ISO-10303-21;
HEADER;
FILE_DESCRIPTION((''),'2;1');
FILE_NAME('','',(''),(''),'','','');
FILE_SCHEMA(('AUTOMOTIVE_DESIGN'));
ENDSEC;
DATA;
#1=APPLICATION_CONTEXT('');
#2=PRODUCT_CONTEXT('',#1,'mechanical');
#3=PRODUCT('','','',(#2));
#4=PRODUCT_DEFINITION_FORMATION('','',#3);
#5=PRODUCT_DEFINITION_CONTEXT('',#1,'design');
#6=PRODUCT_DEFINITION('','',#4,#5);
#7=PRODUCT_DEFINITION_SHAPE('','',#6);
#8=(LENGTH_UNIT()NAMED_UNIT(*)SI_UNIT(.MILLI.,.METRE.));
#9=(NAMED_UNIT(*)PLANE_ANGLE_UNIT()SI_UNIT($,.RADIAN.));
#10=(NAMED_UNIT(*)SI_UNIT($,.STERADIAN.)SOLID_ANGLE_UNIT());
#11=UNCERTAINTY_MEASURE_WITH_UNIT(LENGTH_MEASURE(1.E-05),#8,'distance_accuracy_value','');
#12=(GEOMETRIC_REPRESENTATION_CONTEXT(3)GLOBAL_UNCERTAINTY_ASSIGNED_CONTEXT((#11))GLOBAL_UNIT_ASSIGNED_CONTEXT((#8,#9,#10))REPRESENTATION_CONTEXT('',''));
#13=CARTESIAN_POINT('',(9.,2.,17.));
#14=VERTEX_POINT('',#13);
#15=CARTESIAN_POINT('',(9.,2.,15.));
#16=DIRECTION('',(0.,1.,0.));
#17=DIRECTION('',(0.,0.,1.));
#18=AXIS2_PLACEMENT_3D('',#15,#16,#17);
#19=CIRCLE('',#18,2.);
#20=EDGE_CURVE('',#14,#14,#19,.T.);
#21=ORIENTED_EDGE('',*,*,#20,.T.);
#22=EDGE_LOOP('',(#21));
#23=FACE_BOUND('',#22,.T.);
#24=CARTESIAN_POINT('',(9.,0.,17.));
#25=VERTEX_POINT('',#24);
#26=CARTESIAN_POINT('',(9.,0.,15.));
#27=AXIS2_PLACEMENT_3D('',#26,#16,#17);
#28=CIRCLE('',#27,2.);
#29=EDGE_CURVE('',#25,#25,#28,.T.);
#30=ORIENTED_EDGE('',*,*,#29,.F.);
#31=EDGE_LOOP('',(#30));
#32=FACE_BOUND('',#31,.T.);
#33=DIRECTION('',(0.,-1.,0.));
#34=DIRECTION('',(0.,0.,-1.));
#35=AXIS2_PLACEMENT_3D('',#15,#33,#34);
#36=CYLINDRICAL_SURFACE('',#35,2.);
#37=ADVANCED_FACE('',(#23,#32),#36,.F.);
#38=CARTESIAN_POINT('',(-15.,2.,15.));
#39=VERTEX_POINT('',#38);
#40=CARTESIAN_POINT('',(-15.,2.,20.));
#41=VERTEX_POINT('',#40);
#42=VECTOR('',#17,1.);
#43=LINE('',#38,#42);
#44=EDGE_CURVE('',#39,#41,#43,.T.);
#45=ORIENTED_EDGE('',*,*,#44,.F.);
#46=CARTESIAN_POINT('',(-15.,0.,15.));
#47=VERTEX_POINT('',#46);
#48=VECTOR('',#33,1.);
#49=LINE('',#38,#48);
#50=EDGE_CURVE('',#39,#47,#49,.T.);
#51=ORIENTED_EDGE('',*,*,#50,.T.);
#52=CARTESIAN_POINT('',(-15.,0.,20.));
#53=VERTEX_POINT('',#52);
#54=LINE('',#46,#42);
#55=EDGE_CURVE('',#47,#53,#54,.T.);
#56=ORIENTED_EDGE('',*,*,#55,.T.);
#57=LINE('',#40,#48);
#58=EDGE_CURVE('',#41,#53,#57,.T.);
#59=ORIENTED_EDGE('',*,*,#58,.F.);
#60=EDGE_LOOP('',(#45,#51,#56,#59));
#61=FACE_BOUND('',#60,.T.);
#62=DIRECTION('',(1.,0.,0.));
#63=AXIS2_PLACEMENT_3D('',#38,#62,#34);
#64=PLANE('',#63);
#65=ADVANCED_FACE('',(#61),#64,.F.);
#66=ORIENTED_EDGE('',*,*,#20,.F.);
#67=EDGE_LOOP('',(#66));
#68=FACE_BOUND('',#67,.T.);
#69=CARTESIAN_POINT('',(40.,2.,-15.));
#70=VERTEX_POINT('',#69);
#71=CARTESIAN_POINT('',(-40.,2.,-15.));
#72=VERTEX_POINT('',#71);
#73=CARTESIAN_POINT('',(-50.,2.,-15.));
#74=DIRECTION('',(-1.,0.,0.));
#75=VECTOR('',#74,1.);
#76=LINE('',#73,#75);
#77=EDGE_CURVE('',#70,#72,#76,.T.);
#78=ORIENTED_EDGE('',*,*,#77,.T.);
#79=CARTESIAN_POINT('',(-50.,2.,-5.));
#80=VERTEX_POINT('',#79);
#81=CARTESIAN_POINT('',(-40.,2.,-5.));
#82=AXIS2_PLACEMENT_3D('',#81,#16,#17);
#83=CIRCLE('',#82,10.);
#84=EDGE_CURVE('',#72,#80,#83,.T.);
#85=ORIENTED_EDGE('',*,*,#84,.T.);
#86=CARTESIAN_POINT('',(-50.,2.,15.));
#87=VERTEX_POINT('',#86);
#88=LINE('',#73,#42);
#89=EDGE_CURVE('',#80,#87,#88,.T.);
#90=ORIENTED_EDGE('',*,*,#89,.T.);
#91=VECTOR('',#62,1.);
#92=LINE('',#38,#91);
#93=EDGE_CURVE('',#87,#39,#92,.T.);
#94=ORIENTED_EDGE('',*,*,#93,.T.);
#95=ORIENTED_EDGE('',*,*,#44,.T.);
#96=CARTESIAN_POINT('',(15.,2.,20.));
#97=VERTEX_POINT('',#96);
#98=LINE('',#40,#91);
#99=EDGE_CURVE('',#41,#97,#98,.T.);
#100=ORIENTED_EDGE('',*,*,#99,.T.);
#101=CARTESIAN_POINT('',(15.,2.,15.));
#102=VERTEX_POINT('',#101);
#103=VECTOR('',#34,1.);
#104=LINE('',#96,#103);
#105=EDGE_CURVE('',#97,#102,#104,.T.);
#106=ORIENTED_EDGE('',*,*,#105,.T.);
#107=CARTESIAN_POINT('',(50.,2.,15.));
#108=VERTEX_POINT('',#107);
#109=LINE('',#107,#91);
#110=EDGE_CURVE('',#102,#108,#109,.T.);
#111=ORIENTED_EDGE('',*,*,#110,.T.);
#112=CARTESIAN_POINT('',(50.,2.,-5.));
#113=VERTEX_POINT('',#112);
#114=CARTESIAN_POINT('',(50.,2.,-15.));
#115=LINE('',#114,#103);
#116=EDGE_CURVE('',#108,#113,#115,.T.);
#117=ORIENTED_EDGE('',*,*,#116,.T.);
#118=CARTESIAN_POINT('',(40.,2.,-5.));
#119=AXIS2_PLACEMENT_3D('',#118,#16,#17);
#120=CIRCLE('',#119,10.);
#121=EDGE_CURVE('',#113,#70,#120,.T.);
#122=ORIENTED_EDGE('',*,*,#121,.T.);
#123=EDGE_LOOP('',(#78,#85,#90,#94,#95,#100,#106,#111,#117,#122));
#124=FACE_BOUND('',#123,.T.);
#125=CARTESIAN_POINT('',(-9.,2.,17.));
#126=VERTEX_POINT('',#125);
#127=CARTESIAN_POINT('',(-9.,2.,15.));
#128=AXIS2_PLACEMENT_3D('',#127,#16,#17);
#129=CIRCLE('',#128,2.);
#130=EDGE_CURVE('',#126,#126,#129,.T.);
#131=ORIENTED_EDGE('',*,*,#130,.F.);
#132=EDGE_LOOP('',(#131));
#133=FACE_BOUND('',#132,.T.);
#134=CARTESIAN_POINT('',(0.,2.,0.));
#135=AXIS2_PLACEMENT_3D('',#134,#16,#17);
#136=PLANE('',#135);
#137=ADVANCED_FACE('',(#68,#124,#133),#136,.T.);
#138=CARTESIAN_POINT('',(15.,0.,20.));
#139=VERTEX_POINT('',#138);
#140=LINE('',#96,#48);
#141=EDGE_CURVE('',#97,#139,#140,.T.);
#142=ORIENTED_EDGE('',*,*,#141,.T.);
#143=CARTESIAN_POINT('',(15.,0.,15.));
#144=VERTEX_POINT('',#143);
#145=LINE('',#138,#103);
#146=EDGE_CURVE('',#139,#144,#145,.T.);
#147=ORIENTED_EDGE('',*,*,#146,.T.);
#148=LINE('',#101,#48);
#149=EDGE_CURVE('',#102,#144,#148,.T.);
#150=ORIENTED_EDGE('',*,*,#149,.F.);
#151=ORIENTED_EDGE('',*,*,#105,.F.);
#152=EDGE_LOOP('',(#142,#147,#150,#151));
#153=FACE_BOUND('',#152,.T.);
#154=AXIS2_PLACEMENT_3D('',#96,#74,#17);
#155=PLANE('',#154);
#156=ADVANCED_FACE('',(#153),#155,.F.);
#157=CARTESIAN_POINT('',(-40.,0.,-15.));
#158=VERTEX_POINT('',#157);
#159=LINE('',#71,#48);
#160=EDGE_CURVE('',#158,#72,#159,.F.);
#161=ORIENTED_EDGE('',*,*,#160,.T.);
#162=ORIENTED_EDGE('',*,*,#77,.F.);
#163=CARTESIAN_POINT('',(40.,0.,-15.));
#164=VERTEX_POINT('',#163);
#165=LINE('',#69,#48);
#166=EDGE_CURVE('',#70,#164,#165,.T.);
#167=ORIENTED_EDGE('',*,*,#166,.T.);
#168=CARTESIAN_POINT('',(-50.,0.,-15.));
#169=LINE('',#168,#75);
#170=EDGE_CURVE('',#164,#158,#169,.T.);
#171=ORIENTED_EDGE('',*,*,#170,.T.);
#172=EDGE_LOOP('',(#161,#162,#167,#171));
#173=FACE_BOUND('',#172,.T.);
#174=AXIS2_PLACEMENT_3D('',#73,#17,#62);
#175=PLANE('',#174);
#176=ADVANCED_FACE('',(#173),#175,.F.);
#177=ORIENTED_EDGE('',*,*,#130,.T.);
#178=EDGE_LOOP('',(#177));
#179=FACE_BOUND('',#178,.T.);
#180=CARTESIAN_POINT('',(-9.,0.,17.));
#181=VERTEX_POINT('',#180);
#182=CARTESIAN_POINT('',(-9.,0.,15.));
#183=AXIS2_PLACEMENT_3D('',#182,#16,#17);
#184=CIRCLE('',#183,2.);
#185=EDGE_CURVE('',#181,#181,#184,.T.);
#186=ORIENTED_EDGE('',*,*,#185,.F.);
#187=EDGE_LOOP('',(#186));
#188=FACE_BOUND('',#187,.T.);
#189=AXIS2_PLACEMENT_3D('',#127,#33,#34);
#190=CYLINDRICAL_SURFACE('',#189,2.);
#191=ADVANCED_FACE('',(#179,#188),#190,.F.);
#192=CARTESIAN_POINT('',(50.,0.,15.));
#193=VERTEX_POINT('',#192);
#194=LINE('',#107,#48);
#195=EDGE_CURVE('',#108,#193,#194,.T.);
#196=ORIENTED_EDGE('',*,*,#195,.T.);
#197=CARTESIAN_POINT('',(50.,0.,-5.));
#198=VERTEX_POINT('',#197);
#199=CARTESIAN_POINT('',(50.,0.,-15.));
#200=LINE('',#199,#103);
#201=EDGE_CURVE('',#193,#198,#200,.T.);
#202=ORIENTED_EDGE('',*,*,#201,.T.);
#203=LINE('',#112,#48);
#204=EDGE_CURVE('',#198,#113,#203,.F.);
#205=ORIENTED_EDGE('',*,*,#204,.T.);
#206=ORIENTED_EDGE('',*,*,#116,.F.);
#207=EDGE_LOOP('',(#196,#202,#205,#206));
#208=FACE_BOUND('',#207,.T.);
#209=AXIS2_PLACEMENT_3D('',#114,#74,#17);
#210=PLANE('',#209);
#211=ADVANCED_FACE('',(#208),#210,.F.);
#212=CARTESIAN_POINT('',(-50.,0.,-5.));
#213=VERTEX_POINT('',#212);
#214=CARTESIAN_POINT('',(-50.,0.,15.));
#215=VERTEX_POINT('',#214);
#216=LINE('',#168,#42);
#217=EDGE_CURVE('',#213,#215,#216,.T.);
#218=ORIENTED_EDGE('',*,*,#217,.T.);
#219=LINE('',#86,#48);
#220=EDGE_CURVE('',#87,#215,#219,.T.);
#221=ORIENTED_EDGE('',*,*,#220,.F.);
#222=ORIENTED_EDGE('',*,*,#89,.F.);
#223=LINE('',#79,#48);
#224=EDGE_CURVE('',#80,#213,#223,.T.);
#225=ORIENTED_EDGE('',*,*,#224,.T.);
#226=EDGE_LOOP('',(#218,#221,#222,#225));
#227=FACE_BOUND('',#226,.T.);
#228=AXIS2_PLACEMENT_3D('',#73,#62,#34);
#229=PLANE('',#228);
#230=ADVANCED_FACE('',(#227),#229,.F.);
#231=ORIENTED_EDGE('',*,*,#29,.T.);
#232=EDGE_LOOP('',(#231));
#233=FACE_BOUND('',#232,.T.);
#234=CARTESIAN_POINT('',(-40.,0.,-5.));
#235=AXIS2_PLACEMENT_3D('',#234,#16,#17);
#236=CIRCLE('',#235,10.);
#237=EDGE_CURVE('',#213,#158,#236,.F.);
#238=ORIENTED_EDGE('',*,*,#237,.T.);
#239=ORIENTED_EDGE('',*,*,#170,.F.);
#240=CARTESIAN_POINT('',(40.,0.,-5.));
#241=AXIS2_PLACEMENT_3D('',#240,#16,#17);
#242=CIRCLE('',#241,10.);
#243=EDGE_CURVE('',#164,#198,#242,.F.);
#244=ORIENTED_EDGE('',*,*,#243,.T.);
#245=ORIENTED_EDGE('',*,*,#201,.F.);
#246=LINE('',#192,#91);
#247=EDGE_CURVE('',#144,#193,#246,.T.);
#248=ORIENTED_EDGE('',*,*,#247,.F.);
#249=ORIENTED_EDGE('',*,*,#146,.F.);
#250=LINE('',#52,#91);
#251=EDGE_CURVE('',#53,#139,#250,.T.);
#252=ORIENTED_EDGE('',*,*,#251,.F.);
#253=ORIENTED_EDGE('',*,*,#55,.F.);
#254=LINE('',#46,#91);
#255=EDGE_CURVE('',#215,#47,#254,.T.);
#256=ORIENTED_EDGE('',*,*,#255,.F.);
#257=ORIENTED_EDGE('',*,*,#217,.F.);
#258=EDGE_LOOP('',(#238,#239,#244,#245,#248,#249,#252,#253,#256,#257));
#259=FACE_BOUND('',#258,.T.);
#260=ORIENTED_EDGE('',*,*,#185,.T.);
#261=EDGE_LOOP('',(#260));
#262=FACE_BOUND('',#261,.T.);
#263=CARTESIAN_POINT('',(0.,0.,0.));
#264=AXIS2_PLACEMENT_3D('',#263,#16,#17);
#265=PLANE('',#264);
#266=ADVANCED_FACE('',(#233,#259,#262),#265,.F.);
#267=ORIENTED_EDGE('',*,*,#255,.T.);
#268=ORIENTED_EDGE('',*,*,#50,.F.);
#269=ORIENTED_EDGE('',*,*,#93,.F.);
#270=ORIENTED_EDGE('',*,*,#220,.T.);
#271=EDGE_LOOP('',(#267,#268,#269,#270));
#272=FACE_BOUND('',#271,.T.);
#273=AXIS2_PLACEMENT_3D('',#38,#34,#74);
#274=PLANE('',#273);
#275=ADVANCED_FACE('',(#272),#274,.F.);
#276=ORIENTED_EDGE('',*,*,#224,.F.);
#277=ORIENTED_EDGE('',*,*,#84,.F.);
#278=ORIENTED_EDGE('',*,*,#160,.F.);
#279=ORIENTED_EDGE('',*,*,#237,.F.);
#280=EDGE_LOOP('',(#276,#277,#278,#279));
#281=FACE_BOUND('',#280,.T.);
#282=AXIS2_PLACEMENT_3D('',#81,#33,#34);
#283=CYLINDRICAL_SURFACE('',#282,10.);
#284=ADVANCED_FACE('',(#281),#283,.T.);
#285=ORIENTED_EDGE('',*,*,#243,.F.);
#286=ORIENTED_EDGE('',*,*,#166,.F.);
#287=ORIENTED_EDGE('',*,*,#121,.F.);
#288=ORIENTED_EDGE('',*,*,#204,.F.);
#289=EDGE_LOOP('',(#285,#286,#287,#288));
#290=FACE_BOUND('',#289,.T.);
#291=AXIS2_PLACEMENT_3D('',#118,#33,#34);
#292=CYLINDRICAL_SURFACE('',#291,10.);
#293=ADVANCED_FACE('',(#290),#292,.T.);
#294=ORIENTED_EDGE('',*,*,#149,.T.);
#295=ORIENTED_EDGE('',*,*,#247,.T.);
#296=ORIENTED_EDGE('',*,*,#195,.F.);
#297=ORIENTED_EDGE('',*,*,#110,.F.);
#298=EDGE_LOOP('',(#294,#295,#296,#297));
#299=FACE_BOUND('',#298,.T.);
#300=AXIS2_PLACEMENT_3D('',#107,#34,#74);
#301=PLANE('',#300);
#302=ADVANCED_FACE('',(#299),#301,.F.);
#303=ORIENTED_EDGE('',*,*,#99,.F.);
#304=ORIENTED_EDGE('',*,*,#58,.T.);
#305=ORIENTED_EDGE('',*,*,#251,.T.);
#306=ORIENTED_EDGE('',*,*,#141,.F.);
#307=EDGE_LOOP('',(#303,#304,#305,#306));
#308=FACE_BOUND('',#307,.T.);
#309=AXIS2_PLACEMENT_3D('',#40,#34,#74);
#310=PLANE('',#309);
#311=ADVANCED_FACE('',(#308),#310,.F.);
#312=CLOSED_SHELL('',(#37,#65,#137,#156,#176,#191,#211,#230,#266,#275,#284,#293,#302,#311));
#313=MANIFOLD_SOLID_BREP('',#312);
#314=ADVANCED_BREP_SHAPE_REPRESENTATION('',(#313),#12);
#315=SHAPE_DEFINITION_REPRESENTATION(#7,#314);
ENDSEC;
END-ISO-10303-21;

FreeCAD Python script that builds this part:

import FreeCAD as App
import Part
import Sketcher
from FreeCAD import Vector


def edges_at(feature, points):
    """Names of the edges that pass closest to the given points."""
    edges = feature.Shape.Edges
    near = lambda p: min(range(len(edges)), key=lambda i: edges[i].distToShape(Part.Vertex(*p))[0])
    return sorted({f"Edge{near(p) + 1}" for p in points})


def add_polygon(sketch, points):
    """Adds a closed chain of lines whose ends are joined by coincident constraints."""
    first, n = sketch.GeometryCount, len(points)
    for a, b in zip(points, points[1:] + points[:1]):
        sketch.addGeometry(Part.LineSegment(App.Vector(*a, 0), App.Vector(*b, 0)), False)
    for i in range(n):
        sketch.addConstraint(Sketcher.Constraint("Coincident", first + i, 2, first + (i + 1) % n, 1))

doc = App.newDocument("Part")
body = doc.addObject("PartDesign::Body", "Body")

sketch1 = body.newObject("Sketcher::SketchObject", "Sketch")
sketch1.AttachmentSupport = (doc.getObject("XZ_Plane"), [""])
sketch1.MapMode = "FlatFace"
add_polygon(sketch1, [(50, 15), (50, -15), (-50, -15), (-50, 15), (-15, 15), (-15, 20), (15, 20), (15, 15)])
sketch1.addGeometry(Part.Circle(Vector(9, 15, 0), Vector(0, 0, 1), 2), False)
sketch1.addGeometry(Part.Circle(Vector(-9, 15, 0), Vector(0, 0, 1), 2), False)
sketch1.addConstraint([
    Sketcher.Constraint("Vertical", 0),
    Sketcher.Constraint("Horizontal", 1),
    Sketcher.Constraint("Vertical", 2),
    Sketcher.Constraint("Horizontal", 3),
    Sketcher.Constraint("Vertical", 4),
    Sketcher.Constraint("Horizontal", 5),
    Sketcher.Constraint("Vertical", 6),
    Sketcher.Constraint("Horizontal", 7),
    Sketcher.Constraint("Equal", 8, 9),
    Sketcher.Constraint("Symmetric", 0, 2, 2, 2, -1, 1),
    Sketcher.Constraint("Symmetric", 8, 3, 9, 3, -2),
    Sketcher.Constraint("Symmetric", 3, 2, 6, 2, -2),
    Sketcher.Constraint("Horizontal", 9, 3, 2, 2),
    Sketcher.Constraint("Equal", 5, 0),
    Sketcher.Constraint("Diameter", 8, 4.0),
    Sketcher.Constraint("DistanceX", 1, 2, 1, 1, 100.0),
    Sketcher.Constraint("DistanceX", 3, 1, 3, 2, 35.0),
    Sketcher.Constraint("DistanceY", 4, 1, 4, 2, 5.0),
    Sketcher.Constraint("DistanceX", -1, 1, 8, 3, 9.0),
])
pad1 = body.newObject("PartDesign::Pad", "Pad")
pad1.Profile = sketch1
pad1.Length = 2
pad1.Reversed = True
doc.recompute()

fillet = body.newObject("PartDesign::Fillet", "Fillet")
fillet.Base = (pad1, edges_at(pad1, [(-50, 1, -15), (50, 1, -15)]))
fillet.Radius = 10

doc.recompute()
